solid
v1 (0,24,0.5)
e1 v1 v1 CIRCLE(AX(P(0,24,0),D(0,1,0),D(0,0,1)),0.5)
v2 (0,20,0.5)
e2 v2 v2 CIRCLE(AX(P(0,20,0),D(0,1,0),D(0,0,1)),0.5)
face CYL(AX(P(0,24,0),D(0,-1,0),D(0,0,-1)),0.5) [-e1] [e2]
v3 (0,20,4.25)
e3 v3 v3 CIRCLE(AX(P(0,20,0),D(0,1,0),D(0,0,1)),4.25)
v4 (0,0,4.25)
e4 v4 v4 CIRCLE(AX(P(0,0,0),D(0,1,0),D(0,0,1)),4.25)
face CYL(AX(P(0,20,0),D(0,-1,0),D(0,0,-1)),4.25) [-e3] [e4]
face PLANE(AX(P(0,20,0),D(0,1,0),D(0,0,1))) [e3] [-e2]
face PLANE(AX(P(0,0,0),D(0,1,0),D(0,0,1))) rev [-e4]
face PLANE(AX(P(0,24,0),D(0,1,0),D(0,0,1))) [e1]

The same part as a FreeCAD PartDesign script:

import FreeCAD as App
import Part
import Sketcher
from FreeCAD import Vector
Q = App.Units.Quantity

doc = App.newDocument("Part")
body = doc.addObject("PartDesign::Body", "Body")

sketch1 = body.newObject("Sketcher::SketchObject", "Sketch")
sketch1.AttachmentSupport = (doc.getObject("XZ_Plane"), [""])
sketch1.MapMode = "FlatFace"
sketch1.addGeometry(Part.Circle(Vector(0, 0, 0), Vector(0, 0, 1), 4.25), False)
sketch1.addConstraint(Sketcher.Constraint("Coincident", 0, 3, -1, 1))
sketch1.addConstraint(Sketcher.Constraint("Diameter", 0, Q("8.5 mm")))
pad1 = body.newObject("PartDesign::Pad", "Pad")
pad1.Profile = sketch1
pad1.Length = 20
pad1.Reversed = True

sketch2 = body.newObject("Sketcher::SketchObject", "Sketch001")
sketch2.AttachmentSupport = (doc.getObject("XZ_Plane"), [""])
sketch2.MapMode = "FlatFace"
sketch2.AttachmentOffset = App.Placement(Vector(0, 0, -20), App.Rotation())
sketch2.addGeometry(Part.Circle(Vector(0, 0, 0), Vector(0, 0, 1), 0.5), False)
sketch2.addConstraint(Sketcher.Constraint("Coincident", 0, 3, -1, 1))
sketch2.addConstraint(Sketcher.Constraint("Diameter", 0, Q("1 mm")))
pad2 = body.newObject("PartDesign::Pad", "Pad001")
pad2.Profile = sketch2
pad2.Length = 4
pad2.Reversed = True

doc.recompute()
